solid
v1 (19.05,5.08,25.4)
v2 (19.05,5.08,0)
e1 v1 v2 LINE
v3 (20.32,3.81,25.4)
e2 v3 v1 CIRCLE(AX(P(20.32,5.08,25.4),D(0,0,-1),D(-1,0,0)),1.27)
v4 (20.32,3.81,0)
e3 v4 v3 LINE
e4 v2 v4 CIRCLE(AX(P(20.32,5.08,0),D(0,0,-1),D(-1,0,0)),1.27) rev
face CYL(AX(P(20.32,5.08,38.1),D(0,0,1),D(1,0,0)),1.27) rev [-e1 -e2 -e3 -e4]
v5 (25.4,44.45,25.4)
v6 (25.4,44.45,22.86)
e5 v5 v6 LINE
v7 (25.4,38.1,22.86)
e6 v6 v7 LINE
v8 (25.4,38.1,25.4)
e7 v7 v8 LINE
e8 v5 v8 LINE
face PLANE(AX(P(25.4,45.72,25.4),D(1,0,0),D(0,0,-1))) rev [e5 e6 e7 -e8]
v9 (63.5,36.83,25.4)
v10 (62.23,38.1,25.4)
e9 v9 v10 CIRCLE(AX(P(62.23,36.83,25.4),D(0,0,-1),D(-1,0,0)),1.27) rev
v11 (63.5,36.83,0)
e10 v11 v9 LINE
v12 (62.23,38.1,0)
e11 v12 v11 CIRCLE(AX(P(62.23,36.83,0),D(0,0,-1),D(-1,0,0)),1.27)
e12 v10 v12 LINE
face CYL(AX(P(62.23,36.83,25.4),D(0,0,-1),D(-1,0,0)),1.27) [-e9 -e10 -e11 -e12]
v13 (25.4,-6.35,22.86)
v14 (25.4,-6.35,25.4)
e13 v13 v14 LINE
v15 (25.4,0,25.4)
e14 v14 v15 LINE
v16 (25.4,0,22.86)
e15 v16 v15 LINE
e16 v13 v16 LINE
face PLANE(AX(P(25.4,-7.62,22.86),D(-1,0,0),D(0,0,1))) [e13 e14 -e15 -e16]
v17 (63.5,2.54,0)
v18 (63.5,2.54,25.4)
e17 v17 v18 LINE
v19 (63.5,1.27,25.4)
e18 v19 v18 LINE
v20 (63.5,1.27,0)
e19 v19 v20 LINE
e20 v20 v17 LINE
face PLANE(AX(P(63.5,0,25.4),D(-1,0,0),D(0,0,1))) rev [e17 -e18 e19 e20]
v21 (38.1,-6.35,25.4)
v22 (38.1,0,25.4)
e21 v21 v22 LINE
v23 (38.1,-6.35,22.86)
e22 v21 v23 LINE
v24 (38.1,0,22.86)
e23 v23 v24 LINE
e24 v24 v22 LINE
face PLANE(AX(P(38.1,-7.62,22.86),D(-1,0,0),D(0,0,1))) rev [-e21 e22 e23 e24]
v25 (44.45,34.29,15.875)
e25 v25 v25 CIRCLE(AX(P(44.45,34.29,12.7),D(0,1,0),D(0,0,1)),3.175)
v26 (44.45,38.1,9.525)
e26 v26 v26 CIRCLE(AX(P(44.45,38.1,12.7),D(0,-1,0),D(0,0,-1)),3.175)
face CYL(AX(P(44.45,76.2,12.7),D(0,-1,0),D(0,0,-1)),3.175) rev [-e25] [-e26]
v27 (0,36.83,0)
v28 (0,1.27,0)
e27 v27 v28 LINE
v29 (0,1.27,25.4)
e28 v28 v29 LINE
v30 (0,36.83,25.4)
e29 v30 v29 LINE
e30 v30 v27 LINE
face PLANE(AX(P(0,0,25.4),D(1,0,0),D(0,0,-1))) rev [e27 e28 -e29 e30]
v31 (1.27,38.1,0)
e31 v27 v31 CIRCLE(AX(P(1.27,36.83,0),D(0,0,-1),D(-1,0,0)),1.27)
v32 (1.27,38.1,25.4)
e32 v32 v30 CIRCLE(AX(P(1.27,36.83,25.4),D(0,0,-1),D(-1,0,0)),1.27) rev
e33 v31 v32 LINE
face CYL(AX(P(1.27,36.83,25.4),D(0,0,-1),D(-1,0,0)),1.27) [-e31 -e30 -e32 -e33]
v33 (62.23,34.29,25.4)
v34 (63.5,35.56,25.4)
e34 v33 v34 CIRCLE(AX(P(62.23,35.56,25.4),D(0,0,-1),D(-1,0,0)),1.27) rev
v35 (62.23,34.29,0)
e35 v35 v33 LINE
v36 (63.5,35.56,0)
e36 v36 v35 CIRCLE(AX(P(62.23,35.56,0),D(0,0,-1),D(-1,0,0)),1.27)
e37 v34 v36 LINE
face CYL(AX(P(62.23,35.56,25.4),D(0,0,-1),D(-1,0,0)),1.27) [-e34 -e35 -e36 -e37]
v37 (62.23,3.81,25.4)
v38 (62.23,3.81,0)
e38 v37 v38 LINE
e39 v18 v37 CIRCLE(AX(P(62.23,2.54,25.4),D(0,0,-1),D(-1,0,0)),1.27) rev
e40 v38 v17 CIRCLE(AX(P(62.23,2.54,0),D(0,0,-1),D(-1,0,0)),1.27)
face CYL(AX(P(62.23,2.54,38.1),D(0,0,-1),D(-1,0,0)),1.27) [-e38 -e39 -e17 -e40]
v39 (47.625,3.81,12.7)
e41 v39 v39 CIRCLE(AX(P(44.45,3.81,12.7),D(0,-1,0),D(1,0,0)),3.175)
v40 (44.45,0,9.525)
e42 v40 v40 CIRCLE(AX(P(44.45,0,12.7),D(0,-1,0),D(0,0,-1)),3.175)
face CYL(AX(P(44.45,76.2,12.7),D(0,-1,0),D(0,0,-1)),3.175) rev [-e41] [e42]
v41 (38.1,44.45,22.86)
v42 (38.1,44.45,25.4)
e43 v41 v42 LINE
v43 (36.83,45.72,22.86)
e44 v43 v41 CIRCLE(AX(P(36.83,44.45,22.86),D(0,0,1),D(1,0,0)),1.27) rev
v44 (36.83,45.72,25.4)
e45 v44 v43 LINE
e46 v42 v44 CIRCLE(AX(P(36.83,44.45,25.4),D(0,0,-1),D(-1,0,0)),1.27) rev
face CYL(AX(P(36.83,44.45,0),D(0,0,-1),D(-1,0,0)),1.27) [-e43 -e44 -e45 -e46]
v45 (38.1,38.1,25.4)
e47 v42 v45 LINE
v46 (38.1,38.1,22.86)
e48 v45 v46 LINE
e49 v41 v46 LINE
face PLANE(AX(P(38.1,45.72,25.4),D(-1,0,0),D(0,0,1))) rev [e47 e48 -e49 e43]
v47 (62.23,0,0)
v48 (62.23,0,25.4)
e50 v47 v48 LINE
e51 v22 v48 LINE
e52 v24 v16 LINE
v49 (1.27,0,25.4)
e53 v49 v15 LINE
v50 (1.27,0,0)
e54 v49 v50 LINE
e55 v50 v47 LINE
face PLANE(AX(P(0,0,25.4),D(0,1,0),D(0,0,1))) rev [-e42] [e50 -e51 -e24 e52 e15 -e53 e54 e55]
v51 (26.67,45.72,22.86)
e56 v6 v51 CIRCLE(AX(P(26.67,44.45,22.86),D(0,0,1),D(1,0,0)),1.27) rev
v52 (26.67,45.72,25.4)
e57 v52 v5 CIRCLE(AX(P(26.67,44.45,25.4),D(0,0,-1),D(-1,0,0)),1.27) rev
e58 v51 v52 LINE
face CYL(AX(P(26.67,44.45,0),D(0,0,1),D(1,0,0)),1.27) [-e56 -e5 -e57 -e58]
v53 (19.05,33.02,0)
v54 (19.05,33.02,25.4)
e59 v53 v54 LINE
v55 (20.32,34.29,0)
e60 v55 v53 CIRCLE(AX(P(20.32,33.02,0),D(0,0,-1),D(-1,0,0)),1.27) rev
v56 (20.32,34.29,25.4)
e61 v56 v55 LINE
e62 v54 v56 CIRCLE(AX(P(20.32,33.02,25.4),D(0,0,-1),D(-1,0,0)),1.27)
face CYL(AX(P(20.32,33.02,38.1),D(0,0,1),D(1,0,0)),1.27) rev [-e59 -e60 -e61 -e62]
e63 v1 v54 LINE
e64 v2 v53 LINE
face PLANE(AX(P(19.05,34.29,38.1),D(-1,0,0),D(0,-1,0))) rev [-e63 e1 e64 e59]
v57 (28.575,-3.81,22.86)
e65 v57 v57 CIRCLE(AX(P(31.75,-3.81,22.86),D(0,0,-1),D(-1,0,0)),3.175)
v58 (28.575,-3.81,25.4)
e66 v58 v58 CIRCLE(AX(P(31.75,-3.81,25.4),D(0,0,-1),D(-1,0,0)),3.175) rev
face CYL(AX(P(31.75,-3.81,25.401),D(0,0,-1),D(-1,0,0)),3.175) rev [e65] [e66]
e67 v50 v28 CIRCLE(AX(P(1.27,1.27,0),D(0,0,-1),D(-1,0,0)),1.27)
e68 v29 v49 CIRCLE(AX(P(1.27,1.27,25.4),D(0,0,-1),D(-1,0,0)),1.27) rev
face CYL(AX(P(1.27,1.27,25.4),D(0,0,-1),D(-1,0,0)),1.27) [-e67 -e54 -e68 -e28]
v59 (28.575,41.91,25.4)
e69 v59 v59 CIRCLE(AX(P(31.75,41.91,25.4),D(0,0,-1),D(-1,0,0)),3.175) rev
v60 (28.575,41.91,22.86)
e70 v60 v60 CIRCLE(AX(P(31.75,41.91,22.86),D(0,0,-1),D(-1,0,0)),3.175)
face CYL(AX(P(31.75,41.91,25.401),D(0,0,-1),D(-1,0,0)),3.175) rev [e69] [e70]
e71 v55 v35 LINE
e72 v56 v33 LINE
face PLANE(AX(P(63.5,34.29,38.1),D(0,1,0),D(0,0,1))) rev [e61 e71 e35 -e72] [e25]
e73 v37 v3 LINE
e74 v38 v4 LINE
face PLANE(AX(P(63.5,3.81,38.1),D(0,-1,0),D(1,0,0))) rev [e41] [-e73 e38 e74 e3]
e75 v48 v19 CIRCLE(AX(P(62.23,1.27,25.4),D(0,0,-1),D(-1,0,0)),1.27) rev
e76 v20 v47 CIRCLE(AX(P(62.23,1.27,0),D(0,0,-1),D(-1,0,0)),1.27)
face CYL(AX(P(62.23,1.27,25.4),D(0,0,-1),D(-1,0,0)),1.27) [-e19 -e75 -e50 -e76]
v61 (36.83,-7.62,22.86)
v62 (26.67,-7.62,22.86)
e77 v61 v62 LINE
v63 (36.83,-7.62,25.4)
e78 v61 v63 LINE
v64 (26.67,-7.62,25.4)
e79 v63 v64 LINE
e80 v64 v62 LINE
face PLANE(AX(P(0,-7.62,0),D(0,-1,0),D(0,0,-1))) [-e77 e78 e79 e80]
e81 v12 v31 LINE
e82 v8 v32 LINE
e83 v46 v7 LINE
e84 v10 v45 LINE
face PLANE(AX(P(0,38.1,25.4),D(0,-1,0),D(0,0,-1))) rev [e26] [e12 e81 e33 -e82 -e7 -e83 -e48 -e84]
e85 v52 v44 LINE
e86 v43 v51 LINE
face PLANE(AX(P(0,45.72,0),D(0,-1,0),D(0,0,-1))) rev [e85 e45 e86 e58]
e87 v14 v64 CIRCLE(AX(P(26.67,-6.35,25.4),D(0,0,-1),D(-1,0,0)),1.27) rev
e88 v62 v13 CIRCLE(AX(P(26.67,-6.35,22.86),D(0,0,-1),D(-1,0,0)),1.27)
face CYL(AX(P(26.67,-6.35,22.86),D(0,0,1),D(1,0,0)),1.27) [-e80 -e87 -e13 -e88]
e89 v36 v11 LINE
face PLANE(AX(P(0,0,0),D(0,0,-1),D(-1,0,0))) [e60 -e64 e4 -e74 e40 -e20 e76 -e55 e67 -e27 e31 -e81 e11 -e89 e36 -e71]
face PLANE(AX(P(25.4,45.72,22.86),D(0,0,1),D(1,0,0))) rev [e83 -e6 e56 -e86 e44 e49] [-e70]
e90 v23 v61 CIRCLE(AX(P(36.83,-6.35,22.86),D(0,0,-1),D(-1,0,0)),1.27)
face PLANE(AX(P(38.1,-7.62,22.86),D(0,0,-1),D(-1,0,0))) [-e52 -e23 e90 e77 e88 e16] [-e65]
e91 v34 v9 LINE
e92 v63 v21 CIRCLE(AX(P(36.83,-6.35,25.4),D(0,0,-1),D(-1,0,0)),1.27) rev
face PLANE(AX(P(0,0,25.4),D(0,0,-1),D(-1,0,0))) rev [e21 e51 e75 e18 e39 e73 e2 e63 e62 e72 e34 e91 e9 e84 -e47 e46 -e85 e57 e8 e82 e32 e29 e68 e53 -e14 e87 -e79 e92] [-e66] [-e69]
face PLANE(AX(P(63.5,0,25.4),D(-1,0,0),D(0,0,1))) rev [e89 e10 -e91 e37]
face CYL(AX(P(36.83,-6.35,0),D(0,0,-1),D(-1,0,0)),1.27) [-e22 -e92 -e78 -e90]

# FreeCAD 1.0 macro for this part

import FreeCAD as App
import Part
import Sketcher
from FreeCAD import Vector
Q = App.Units.Quantity


def edges_at(feature, points):
    """Names of the edges that pass closest to the given points."""
    edges = feature.Shape.Edges
    near = lambda p: min(range(len(edges)), key=lambda i: edges[i].distToShape(Part.Vertex(*p))[0])
    return sorted({f"Edge{near(p) + 1}" for p in points})


def add_polygon(sketch, points):
    """Adds a closed chain of lines whose ends are joined by coincident constraints."""
    first, n = sketch.GeometryCount, len(points)
    for a, b in zip(points, points[1:] + points[:1]):
        sketch.addGeometry(Part.LineSegment(App.Vector(*a, 0), App.Vector(*b, 0)), False)
    for i in range(n):
        sketch.addConstraint(Sketcher.Constraint("Coincident", first + i, 2, first + (i + 1) % n, 1))

doc = App.newDocument("Part")
params = doc.addObject("Spreadsheet::Sheet", "Params")
for row, (alias, value) in enumerate([
    ("sketch1_width", "2.5 in"),
    ("sketch1_height", "1.5 in"),
    ("pad1_length", "1 in"),
    ("sketch2_height", "1.2 in"),
    ("sketch2_width", "1.75 in"),
    ("pocket1_length", "1.5 in"),
    ("sketch3_diameter", "0.25 in"),
    ("pocket2_length", "3 in"),
    ("fillet_radius", "0.05 in"),
    ("sketch4_width", "0.5 in"),
    ("sketch4_height", "0.1 in"),
    ("pad2_length", "0.3 in"),
    ("sketch5_width", "0.5 in"),
    ("sketch5_height", "0.1 in"),
    ("pad3_length", "0.3 in"),
    ("sketch6_diameter", "0.25 in"),
    ("sketch7_diameter", "0.25 in"),
    ("fillet2_radius", "0.05 in"),
], start=1):
    params.set(f"A{row}", alias)
    params.set(f"B{row}", "=" + value)
    params.setAlias(f"B{row}", alias)

body = doc.addObject("PartDesign::Body", "Body")

# Sketch on XY plane
sketch1 = body.newObject("Sketcher::SketchObject", "Sketch")
sketch1.AttachmentSupport = (doc.getObject("XY_Plane"), [""])
sketch1.MapMode = "FlatFace"
add_polygon(sketch1, [(0, 38), (0, 0), (64, 0), (64, 38)])  # lines 0-3
sketch1.addConstraint(Sketcher.Constraint("Vertical", 0))
sketch1.addConstraint(Sketcher.Constraint("Horizontal", 1))
sketch1.addConstraint(Sketcher.Constraint("Vertical", 2))
sketch1.addConstraint(Sketcher.Constraint("Horizontal", 3))
sketch1.addConstraint(Sketcher.Constraint("Coincident", 0, 2, -1, 1))
sketch1.addConstraint(Sketcher.Constraint("DistanceX", 1, 1, 1, 2, Q("2.5 in")))
sketch1.addConstraint(Sketcher.Constraint("DistanceY", 0, 2, 0, 1, Q("1.5 in")))
sketch1.setExpression("Constraints[9]", "Params.sketch1_width")
sketch1.setExpression("Constraints[10]", "Params.sketch1_height")
pad1 = body.newObject("PartDesign::Pad", "Pad")
pad1.Profile = sketch1
pad1.setExpression("Length", "Params.pad1_length")

# Sketch on XY plane
sketch2 = body.newObject("Sketcher::SketchObject", "Sketch001")
sketch2.AttachmentSupport = (doc.getObject("XY_Plane"), [""])
sketch2.MapMode = "FlatFace"
add_polygon(sketch2, [(64, 34), (64, 4), (19, 4), (19, 34)])  # lines 0-3
sketch2.addConstraint(Sketcher.Constraint("Vertical", 0))
sketch2.addConstraint(Sketcher.Constraint("Horizontal", 1))
sketch2.addConstraint(Sketcher.Constraint("Vertical", 2))
sketch2.addConstraint(Sketcher.Constraint("Horizontal", 3))
sketch2.addConstraint(Sketcher.Constraint("DistanceY", 0, 2, 0, 1, Q("1.2 in")))
sketch2.addConstraint(Sketcher.Constraint("DistanceX", 1, 2, 1, 1, Q("1.75 in")))
sketch2.addConstraint(Sketcher.Constraint("DistanceX", -1, 1, 0, 2, Q("2.5 in")))
sketch2.addConstraint(Sketcher.Constraint("DistanceY", -1, 1, 0, 2, Q("0.15 in")))
sketch2.setExpression("Constraints[8]", "Params.sketch2_height")
sketch2.setExpression("Constraints[9]", "Params.sketch2_width")
pocket1 = body.newObject("PartDesign::Pocket", "Pocket")
pocket1.Profile = sketch2
pocket1.setExpression("Length", "Params.pocket1_length")
pocket1.Reversed = True

# Sketch on XZ plane
sketch3 = body.newObject("Sketcher::SketchObject", "Sketch002")
sketch3.AttachmentSupport = (doc.getObject("XZ_Plane"), [""])
sketch3.MapMode = "FlatFace"
sketch3.addGeometry(Part.Circle(Vector(44.5, 12.7, 0), Vector(0, 0, 1), 3.2), False)
sketch3.addConstraint(Sketcher.Constraint("Diameter", 0, Q("0.25 in")))
sketch3.addConstraint(Sketcher.Constraint("DistanceY", -1, 1, 0, 3, Q("0.5 in")))
sketch3.addConstraint(Sketcher.Constraint("DistanceX", -1, 1, 0, 3, Q("1.75 in")))
sketch3.setExpression("Constraints[0]", "Params.sketch3_diameter")
pocket2 = body.newObject("PartDesign::Pocket", "Pocket001")
pocket2.Profile = sketch3
pocket2.setExpression("Length", "Params.pocket2_length")
doc.recompute()

fillet = body.newObject("PartDesign::Fillet", "Fillet")
fillet.Base = (pocket2, edges_at(pocket2, [
    (63.5, 3.81, 12.7),
    (63.5, 34.29, 12.7),
    (19.05, 34.29, 12.7),
    (19.05, 3.81, 12.7),
    (0, 38.1, 12.7),
    (63.5, 38.1, 12.7),
    (63.5, 0, 12.7),
    (0, 0, 12.7),
]))
fillet.setExpression("Radius", "Params.fillet_radius")

# Sketch on XZ plane
sketch4 = body.newObject("Sketcher::SketchObject", "Sketch003")
sketch4.AttachmentSupport = (doc.getObject("XZ_Plane"), [""])
sketch4.MapMode = "FlatFace"
sketch4.AttachmentOffset = App.Placement(Vector(0, 0, -1.5 * 25.4), App.Rotation())
add_polygon(sketch4, [(25.4, 22.9), (25.4, 25.4), (38.1, 25.4), (38.1, 22.9)])  # lines 0-3
sketch4.addConstraint(Sketcher.Constraint("Vertical", 0))
sketch4.addConstraint(Sketcher.Constraint("Horizontal", 1))
sketch4.addConstraint(Sketcher.Constraint("Vertical", 2))
sketch4.addConstraint(Sketcher.Constraint("Horizontal", 3))
sketch4.addConstraint(Sketcher.Constraint("DistanceX", 1, 1, 1, 2, Q("0.5 in")))
sketch4.addConstraint(Sketcher.Constraint("DistanceY", 0, 1, 0, 2, Q("0.1 in")))
sketch4.addConstraint(Sketcher.Constraint("DistanceX", -1, 1, 0, 2, Q("1 in")))
sketch4.addConstraint(Sketcher.Constraint("DistanceY", -1, 1, 0, 2, Q("1 in")))
sketch4.setExpression("Constraints[8]", "Params.sketch4_width")
sketch4.setExpression("Constraints[9]", "Params.sketch4_height")
pad2 = body.newObject("PartDesign::Pad", "Pad001")
pad2.Profile = sketch4
pad2.setExpression("Length", "Params.pad2_length")
pad2.Reversed = True

# Sketch on XZ plane
sketch5 = body.newObject("Sketcher::SketchObject", "Sketch004")
sketch5.AttachmentSupport = (doc.getObject("XZ_Plane"), [""])
sketch5.MapMode = "FlatFace"
add_polygon(sketch5, [(25.4, 25.4), (25.4, 22.9), (38.1, 22.9), (38.1, 25.4)])  # lines 0-3
sketch5.addConstraint(Sketcher.Constraint("Vertical", 0))
sketch5.addConstraint(Sketcher.Constraint("Horizontal", 1))
sketch5.addConstraint(Sketcher.Constraint("Vertical", 2))
sketch5.addConstraint(Sketcher.Constraint("Horizontal", 3))
sketch5.addConstraint(Sketcher.Constraint("DistanceX", 1, 1, 1, 2, Q("0.5 in")))
sketch5.addConstraint(Sketcher.Constraint("DistanceY", 0, 2, 0, 1, Q("0.1 in")))
sketch5.addConstraint(Sketcher.Constraint("DistanceX", -1, 1, 0, 2, Q("1 in")))
sketch5.addConstraint(Sketcher.Constraint("DistanceY", -1, 1, 2, 2, Q("1 in")))
sketch5.setExpression("Constraints[8]", "Params.sketch5_width")
sketch5.setExpression("Constraints[9]", "Params.sketch5_height")
pad3 = body.newObject("PartDesign::Pad", "Pad002")
pad3.Profile = sketch5
pad3.setExpression("Length", "Params.pad3_length")

# Sketch on XY plane
sketch6 = body.newObject("Sketcher::SketchObject", "Sketch005")
sketch6.AttachmentSupport = (doc.getObject("XY_Plane"), [""])
sketch6.MapMode = "FlatFace"
sketch6.AttachmentOffset = App.Placement(Vector(0, 0, 0.9 * 25.4), App.Rotation())
sketch6.addGeometry(Part.Circle(Vector(31.8, -3.8, 0), Vector(0, 0, 1), 3.2), False)
sketch6.addConstraint(Sketcher.Constraint("Diameter", 0, Q("0.25 in")))
sketch6.addConstraint(Sketcher.Constraint("DistanceX", -1, 1, 0, 3, Q("1.25 in")))
sketch6.addConstraint(Sketcher.Constraint("DistanceY", 0, 3, -1, 1, Q("0.15 in")))
sketch6.setExpression("Constraints[0]", "Params.sketch6_diameter")
pocket3 = body.newObject("PartDesign::Pocket", "Pocket002")
pocket3.Profile = sketch6
pocket3.Type = "UpToFirst"
pocket3.Reversed = True

# Sketch on XY plane
sketch7 = body.newObject("Sketcher::SketchObject", "Sketch006")
sketch7.AttachmentSupport = (doc.getObject("XY_Plane"), [""])
sketch7.MapMode = "FlatFace"
sketch7.AttachmentOffset = App.Placement(Vector(0, 0, 0.9 * 25.4), App.Rotation())
sketch7.addGeometry(Part.Circle(Vector(31.8, 41.9, 0), Vector(0, 0, 1), 3.2), False)
sketch7.addConstraint(Sketcher.Constraint("Diameter", 0, Q("0.25 in")))
sketch7.addConstraint(Sketcher.Constraint("DistanceX", -1, 1, 0, 3, Q("1.25 in")))
sketch7.addConstraint(Sketcher.Constraint("DistanceY", -1, 1, 0, 3, Q("1.65 in")))
sketch7.setExpression("Constraints[0]", "Params.sketch7_diameter")
pocket4 = body.newObject("PartDesign::Pocket", "Pocket003")
pocket4.Profile = sketch7
pocket4.Type = "UpToFirst"
pocket4.Reversed = True
doc.recompute()

fillet2 = body.newObject("PartDesign::Fillet", "Fillet001")
fillet2.Base = (pocket4, edges_at(pocket4, [
    (25.4, -7.62, 24.13),
    (38.1, -7.62, 24.13),
    (25.4, 45.72, 24.13),
    (38.1, 45.72, 24.13),
]))
fillet2.setExpression("Radius", "Params.fillet2_radius")

doc.recompute()
